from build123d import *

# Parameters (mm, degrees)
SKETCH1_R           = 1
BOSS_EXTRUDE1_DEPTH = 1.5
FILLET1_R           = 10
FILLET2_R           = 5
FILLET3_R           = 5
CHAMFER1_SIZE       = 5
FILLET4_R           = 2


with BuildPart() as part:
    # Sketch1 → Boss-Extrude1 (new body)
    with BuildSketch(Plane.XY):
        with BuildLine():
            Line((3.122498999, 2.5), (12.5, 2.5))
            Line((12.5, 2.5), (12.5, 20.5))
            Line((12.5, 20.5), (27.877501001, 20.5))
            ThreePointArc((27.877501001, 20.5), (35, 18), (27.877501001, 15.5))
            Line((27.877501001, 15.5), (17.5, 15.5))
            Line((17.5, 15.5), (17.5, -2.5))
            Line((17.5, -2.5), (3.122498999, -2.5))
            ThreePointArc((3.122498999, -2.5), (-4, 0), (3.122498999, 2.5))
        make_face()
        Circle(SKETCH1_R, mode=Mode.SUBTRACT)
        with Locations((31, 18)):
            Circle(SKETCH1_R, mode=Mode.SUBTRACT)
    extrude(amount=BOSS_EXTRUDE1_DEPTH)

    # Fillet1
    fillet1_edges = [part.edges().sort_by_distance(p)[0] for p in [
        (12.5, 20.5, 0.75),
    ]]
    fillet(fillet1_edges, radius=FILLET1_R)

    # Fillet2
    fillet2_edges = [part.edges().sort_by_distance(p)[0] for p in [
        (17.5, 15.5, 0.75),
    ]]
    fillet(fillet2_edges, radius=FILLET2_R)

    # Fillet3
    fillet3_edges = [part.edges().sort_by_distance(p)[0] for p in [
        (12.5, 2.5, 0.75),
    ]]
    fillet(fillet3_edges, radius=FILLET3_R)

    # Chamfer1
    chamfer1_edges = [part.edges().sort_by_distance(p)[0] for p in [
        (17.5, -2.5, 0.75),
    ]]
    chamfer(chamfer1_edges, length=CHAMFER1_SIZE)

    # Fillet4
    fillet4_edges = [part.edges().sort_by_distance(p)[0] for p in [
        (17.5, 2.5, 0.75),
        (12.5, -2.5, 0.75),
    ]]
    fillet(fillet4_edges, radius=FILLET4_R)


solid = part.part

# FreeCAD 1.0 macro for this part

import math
import FreeCAD as App
import Part
import Sketcher
Q = App.Units.Quantity


def edges_at(feature, points):
    """Names of the edges that pass closest to the given points."""
    edges = feature.Shape.Edges
    near = lambda p: min(range(len(edges)), key=lambda i: edges[i].distToShape(Part.Vertex(*p))[0])
    return sorted({f"Edge{near(p) + 1}" for p in points})

doc = App.newDocument("Part")
body = doc.addObject("PartDesign::Body", "Body")

# Sketch on XY plane
sketch1 = body.newObject("Sketcher::SketchObject", "Sketch")
sketch1.AttachmentSupport = (doc.getObject("XY_Plane"), [""])
sketch1.MapMode = "FlatFace"
sketch1.addGeometry([
    Part.LineSegment(App.Vector(12.5, 2.5, 0), App.Vector(3.122499, 2.5, 0)),  # 0
    Part.ArcOfCircle(Part.Circle(App.Vector(0, 0, 0), App.Vector(0, 0, 1), 4), math.radians(38.682187), math.radians(321.317813)),  # 1
    Part.LineSegment(App.Vector(3.122499, -2.5, 0), App.Vector(17.5, -2.5, 0)),  # 2
    Part.LineSegment(App.Vector(17.5, -2.5, 0), App.Vector(17.5, 15.5, 0)),  # 3
    Part.LineSegment(App.Vector(17.5, 15.5, 0), App.Vector(27.877501, 15.5, 0)),  # 4
    Part.ArcOfCircle(Part.Circle(App.Vector(31, 18, 0), App.Vector(0, 0, 1), 4), math.radians(-141.317813), math.radians(141.317813)),  # 5
    Part.LineSegment(App.Vector(27.877501, 20.5, 0), App.Vector(12.5, 20.5, 0)),  # 6
    Part.LineSegment(App.Vector(12.5, 20.5, 0), App.Vector(12.5, 2.5, 0)),  # 7
    Part.Circle(App.Vector(0, 0, 0), App.Vector(0, 0, 1), 1),  # 8
    Part.Circle(App.Vector(31, 18, 0), App.Vector(0, 0, 1), 1),  # 9
], False)
sketch1.addConstraint([
    Sketcher.Constraint("Coincident", 0, 2, 1, 1),
    Sketcher.Constraint("Coincident", 1, 2, 2, 1),
    Sketcher.Constraint("Coincident", 2, 2, 3, 1),
    Sketcher.Constraint("Coincident", 3, 2, 4, 1),
    Sketcher.Constraint("Coincident", 4, 2, 5, 1),
    Sketcher.Constraint("Coincident", 5, 2, 6, 1),
    Sketcher.Constraint("Coincident", 6, 2, 7, 1),
    Sketcher.Constraint("Coincident", 7, 2, 0, 1),
    Sketcher.Constraint("Horizontal", 0),
    Sketcher.Constraint("Horizontal", 2),
    Sketcher.Constraint("Vertical", 3),
    Sketcher.Constraint("Horizontal", 4),
    Sketcher.Constraint("Horizontal", 6),
    Sketcher.Constraint("Vertical", 7),
    Sketcher.Constraint("Coincident", 1, 3, -1, 1),
    Sketcher.Constraint("Coincident", 8, 3, -1, 1),
    Sketcher.Constraint("Coincident", 9, 3, 5, 3),
    Sketcher.Constraint("Equal", 1, 5),
    Sketcher.Constraint("Equal", 8, 9),
    Sketcher.Constraint("Vertical", 0, 2, 1, 2),
    Sketcher.Constraint("Vertical", 4, 2, 5, 2),
    Sketcher.Constraint("Equal", 3, 7),
    Sketcher.Constraint("Diameter", 8, Q("2 mm")),
    Sketcher.Constraint("Radius", 1, Q("4 mm")),
    Sketcher.Constraint("DistanceY", 3, 1, 3, 2, Q("18 mm")),
    Sketcher.Constraint("DistanceX", -1, 1, 5, 3, Q("31 mm")),
    Sketcher.Constraint("DistanceY", 1, 2, 0, 2, Q("5 mm")),
    Sketcher.Constraint("DistanceX", 6, 2, 3, 2, Q("5 mm")),
    Sketcher.Constraint("DistanceX", -1, 1, 2, 2, Q("17.5 mm")),
])
pad1 = body.newObject("PartDesign::Pad", "Pad")
pad1.Profile = sketch1
pad1.Length = 1.5
doc.recompute()

fillet = body.newObject("PartDesign::Fillet", "Fillet")
fillet.Base = (pad1, edges_at(pad1, [(12.5, 20.5, 0.75)]))
fillet.Radius = 10
doc.recompute()

fillet2 = body.newObject("PartDesign::Fillet", "Fillet001")
fillet2.Base = (fillet, edges_at(fillet, [(17.5, 15.5, 0.75)]))
fillet2.Radius = 5
doc.recompute()

fillet3 = body.newObject("PartDesign::Fillet", "Fillet002")
fillet3.Base = (fillet2, edges_at(fillet2, [(12.5, 2.5, 0.75)]))
fillet3.Radius = 5
doc.recompute()

chamfer = body.newObject("PartDesign::Chamfer", "Chamfer")
chamfer.Base = (fillet3, edges_at(fillet3, [(17.5, -2.5, 0.75)]))
chamfer.Size = 5
doc.recompute()

fillet4 = body.newObject("PartDesign::Fillet", "Fillet003")
fillet4.Base = (chamfer, edges_at(chamfer, [(17.5, 2.5, 0.75), (12.5, -2.5, 0.75)]))
fillet4.Radius = 2

doc.recompute()
